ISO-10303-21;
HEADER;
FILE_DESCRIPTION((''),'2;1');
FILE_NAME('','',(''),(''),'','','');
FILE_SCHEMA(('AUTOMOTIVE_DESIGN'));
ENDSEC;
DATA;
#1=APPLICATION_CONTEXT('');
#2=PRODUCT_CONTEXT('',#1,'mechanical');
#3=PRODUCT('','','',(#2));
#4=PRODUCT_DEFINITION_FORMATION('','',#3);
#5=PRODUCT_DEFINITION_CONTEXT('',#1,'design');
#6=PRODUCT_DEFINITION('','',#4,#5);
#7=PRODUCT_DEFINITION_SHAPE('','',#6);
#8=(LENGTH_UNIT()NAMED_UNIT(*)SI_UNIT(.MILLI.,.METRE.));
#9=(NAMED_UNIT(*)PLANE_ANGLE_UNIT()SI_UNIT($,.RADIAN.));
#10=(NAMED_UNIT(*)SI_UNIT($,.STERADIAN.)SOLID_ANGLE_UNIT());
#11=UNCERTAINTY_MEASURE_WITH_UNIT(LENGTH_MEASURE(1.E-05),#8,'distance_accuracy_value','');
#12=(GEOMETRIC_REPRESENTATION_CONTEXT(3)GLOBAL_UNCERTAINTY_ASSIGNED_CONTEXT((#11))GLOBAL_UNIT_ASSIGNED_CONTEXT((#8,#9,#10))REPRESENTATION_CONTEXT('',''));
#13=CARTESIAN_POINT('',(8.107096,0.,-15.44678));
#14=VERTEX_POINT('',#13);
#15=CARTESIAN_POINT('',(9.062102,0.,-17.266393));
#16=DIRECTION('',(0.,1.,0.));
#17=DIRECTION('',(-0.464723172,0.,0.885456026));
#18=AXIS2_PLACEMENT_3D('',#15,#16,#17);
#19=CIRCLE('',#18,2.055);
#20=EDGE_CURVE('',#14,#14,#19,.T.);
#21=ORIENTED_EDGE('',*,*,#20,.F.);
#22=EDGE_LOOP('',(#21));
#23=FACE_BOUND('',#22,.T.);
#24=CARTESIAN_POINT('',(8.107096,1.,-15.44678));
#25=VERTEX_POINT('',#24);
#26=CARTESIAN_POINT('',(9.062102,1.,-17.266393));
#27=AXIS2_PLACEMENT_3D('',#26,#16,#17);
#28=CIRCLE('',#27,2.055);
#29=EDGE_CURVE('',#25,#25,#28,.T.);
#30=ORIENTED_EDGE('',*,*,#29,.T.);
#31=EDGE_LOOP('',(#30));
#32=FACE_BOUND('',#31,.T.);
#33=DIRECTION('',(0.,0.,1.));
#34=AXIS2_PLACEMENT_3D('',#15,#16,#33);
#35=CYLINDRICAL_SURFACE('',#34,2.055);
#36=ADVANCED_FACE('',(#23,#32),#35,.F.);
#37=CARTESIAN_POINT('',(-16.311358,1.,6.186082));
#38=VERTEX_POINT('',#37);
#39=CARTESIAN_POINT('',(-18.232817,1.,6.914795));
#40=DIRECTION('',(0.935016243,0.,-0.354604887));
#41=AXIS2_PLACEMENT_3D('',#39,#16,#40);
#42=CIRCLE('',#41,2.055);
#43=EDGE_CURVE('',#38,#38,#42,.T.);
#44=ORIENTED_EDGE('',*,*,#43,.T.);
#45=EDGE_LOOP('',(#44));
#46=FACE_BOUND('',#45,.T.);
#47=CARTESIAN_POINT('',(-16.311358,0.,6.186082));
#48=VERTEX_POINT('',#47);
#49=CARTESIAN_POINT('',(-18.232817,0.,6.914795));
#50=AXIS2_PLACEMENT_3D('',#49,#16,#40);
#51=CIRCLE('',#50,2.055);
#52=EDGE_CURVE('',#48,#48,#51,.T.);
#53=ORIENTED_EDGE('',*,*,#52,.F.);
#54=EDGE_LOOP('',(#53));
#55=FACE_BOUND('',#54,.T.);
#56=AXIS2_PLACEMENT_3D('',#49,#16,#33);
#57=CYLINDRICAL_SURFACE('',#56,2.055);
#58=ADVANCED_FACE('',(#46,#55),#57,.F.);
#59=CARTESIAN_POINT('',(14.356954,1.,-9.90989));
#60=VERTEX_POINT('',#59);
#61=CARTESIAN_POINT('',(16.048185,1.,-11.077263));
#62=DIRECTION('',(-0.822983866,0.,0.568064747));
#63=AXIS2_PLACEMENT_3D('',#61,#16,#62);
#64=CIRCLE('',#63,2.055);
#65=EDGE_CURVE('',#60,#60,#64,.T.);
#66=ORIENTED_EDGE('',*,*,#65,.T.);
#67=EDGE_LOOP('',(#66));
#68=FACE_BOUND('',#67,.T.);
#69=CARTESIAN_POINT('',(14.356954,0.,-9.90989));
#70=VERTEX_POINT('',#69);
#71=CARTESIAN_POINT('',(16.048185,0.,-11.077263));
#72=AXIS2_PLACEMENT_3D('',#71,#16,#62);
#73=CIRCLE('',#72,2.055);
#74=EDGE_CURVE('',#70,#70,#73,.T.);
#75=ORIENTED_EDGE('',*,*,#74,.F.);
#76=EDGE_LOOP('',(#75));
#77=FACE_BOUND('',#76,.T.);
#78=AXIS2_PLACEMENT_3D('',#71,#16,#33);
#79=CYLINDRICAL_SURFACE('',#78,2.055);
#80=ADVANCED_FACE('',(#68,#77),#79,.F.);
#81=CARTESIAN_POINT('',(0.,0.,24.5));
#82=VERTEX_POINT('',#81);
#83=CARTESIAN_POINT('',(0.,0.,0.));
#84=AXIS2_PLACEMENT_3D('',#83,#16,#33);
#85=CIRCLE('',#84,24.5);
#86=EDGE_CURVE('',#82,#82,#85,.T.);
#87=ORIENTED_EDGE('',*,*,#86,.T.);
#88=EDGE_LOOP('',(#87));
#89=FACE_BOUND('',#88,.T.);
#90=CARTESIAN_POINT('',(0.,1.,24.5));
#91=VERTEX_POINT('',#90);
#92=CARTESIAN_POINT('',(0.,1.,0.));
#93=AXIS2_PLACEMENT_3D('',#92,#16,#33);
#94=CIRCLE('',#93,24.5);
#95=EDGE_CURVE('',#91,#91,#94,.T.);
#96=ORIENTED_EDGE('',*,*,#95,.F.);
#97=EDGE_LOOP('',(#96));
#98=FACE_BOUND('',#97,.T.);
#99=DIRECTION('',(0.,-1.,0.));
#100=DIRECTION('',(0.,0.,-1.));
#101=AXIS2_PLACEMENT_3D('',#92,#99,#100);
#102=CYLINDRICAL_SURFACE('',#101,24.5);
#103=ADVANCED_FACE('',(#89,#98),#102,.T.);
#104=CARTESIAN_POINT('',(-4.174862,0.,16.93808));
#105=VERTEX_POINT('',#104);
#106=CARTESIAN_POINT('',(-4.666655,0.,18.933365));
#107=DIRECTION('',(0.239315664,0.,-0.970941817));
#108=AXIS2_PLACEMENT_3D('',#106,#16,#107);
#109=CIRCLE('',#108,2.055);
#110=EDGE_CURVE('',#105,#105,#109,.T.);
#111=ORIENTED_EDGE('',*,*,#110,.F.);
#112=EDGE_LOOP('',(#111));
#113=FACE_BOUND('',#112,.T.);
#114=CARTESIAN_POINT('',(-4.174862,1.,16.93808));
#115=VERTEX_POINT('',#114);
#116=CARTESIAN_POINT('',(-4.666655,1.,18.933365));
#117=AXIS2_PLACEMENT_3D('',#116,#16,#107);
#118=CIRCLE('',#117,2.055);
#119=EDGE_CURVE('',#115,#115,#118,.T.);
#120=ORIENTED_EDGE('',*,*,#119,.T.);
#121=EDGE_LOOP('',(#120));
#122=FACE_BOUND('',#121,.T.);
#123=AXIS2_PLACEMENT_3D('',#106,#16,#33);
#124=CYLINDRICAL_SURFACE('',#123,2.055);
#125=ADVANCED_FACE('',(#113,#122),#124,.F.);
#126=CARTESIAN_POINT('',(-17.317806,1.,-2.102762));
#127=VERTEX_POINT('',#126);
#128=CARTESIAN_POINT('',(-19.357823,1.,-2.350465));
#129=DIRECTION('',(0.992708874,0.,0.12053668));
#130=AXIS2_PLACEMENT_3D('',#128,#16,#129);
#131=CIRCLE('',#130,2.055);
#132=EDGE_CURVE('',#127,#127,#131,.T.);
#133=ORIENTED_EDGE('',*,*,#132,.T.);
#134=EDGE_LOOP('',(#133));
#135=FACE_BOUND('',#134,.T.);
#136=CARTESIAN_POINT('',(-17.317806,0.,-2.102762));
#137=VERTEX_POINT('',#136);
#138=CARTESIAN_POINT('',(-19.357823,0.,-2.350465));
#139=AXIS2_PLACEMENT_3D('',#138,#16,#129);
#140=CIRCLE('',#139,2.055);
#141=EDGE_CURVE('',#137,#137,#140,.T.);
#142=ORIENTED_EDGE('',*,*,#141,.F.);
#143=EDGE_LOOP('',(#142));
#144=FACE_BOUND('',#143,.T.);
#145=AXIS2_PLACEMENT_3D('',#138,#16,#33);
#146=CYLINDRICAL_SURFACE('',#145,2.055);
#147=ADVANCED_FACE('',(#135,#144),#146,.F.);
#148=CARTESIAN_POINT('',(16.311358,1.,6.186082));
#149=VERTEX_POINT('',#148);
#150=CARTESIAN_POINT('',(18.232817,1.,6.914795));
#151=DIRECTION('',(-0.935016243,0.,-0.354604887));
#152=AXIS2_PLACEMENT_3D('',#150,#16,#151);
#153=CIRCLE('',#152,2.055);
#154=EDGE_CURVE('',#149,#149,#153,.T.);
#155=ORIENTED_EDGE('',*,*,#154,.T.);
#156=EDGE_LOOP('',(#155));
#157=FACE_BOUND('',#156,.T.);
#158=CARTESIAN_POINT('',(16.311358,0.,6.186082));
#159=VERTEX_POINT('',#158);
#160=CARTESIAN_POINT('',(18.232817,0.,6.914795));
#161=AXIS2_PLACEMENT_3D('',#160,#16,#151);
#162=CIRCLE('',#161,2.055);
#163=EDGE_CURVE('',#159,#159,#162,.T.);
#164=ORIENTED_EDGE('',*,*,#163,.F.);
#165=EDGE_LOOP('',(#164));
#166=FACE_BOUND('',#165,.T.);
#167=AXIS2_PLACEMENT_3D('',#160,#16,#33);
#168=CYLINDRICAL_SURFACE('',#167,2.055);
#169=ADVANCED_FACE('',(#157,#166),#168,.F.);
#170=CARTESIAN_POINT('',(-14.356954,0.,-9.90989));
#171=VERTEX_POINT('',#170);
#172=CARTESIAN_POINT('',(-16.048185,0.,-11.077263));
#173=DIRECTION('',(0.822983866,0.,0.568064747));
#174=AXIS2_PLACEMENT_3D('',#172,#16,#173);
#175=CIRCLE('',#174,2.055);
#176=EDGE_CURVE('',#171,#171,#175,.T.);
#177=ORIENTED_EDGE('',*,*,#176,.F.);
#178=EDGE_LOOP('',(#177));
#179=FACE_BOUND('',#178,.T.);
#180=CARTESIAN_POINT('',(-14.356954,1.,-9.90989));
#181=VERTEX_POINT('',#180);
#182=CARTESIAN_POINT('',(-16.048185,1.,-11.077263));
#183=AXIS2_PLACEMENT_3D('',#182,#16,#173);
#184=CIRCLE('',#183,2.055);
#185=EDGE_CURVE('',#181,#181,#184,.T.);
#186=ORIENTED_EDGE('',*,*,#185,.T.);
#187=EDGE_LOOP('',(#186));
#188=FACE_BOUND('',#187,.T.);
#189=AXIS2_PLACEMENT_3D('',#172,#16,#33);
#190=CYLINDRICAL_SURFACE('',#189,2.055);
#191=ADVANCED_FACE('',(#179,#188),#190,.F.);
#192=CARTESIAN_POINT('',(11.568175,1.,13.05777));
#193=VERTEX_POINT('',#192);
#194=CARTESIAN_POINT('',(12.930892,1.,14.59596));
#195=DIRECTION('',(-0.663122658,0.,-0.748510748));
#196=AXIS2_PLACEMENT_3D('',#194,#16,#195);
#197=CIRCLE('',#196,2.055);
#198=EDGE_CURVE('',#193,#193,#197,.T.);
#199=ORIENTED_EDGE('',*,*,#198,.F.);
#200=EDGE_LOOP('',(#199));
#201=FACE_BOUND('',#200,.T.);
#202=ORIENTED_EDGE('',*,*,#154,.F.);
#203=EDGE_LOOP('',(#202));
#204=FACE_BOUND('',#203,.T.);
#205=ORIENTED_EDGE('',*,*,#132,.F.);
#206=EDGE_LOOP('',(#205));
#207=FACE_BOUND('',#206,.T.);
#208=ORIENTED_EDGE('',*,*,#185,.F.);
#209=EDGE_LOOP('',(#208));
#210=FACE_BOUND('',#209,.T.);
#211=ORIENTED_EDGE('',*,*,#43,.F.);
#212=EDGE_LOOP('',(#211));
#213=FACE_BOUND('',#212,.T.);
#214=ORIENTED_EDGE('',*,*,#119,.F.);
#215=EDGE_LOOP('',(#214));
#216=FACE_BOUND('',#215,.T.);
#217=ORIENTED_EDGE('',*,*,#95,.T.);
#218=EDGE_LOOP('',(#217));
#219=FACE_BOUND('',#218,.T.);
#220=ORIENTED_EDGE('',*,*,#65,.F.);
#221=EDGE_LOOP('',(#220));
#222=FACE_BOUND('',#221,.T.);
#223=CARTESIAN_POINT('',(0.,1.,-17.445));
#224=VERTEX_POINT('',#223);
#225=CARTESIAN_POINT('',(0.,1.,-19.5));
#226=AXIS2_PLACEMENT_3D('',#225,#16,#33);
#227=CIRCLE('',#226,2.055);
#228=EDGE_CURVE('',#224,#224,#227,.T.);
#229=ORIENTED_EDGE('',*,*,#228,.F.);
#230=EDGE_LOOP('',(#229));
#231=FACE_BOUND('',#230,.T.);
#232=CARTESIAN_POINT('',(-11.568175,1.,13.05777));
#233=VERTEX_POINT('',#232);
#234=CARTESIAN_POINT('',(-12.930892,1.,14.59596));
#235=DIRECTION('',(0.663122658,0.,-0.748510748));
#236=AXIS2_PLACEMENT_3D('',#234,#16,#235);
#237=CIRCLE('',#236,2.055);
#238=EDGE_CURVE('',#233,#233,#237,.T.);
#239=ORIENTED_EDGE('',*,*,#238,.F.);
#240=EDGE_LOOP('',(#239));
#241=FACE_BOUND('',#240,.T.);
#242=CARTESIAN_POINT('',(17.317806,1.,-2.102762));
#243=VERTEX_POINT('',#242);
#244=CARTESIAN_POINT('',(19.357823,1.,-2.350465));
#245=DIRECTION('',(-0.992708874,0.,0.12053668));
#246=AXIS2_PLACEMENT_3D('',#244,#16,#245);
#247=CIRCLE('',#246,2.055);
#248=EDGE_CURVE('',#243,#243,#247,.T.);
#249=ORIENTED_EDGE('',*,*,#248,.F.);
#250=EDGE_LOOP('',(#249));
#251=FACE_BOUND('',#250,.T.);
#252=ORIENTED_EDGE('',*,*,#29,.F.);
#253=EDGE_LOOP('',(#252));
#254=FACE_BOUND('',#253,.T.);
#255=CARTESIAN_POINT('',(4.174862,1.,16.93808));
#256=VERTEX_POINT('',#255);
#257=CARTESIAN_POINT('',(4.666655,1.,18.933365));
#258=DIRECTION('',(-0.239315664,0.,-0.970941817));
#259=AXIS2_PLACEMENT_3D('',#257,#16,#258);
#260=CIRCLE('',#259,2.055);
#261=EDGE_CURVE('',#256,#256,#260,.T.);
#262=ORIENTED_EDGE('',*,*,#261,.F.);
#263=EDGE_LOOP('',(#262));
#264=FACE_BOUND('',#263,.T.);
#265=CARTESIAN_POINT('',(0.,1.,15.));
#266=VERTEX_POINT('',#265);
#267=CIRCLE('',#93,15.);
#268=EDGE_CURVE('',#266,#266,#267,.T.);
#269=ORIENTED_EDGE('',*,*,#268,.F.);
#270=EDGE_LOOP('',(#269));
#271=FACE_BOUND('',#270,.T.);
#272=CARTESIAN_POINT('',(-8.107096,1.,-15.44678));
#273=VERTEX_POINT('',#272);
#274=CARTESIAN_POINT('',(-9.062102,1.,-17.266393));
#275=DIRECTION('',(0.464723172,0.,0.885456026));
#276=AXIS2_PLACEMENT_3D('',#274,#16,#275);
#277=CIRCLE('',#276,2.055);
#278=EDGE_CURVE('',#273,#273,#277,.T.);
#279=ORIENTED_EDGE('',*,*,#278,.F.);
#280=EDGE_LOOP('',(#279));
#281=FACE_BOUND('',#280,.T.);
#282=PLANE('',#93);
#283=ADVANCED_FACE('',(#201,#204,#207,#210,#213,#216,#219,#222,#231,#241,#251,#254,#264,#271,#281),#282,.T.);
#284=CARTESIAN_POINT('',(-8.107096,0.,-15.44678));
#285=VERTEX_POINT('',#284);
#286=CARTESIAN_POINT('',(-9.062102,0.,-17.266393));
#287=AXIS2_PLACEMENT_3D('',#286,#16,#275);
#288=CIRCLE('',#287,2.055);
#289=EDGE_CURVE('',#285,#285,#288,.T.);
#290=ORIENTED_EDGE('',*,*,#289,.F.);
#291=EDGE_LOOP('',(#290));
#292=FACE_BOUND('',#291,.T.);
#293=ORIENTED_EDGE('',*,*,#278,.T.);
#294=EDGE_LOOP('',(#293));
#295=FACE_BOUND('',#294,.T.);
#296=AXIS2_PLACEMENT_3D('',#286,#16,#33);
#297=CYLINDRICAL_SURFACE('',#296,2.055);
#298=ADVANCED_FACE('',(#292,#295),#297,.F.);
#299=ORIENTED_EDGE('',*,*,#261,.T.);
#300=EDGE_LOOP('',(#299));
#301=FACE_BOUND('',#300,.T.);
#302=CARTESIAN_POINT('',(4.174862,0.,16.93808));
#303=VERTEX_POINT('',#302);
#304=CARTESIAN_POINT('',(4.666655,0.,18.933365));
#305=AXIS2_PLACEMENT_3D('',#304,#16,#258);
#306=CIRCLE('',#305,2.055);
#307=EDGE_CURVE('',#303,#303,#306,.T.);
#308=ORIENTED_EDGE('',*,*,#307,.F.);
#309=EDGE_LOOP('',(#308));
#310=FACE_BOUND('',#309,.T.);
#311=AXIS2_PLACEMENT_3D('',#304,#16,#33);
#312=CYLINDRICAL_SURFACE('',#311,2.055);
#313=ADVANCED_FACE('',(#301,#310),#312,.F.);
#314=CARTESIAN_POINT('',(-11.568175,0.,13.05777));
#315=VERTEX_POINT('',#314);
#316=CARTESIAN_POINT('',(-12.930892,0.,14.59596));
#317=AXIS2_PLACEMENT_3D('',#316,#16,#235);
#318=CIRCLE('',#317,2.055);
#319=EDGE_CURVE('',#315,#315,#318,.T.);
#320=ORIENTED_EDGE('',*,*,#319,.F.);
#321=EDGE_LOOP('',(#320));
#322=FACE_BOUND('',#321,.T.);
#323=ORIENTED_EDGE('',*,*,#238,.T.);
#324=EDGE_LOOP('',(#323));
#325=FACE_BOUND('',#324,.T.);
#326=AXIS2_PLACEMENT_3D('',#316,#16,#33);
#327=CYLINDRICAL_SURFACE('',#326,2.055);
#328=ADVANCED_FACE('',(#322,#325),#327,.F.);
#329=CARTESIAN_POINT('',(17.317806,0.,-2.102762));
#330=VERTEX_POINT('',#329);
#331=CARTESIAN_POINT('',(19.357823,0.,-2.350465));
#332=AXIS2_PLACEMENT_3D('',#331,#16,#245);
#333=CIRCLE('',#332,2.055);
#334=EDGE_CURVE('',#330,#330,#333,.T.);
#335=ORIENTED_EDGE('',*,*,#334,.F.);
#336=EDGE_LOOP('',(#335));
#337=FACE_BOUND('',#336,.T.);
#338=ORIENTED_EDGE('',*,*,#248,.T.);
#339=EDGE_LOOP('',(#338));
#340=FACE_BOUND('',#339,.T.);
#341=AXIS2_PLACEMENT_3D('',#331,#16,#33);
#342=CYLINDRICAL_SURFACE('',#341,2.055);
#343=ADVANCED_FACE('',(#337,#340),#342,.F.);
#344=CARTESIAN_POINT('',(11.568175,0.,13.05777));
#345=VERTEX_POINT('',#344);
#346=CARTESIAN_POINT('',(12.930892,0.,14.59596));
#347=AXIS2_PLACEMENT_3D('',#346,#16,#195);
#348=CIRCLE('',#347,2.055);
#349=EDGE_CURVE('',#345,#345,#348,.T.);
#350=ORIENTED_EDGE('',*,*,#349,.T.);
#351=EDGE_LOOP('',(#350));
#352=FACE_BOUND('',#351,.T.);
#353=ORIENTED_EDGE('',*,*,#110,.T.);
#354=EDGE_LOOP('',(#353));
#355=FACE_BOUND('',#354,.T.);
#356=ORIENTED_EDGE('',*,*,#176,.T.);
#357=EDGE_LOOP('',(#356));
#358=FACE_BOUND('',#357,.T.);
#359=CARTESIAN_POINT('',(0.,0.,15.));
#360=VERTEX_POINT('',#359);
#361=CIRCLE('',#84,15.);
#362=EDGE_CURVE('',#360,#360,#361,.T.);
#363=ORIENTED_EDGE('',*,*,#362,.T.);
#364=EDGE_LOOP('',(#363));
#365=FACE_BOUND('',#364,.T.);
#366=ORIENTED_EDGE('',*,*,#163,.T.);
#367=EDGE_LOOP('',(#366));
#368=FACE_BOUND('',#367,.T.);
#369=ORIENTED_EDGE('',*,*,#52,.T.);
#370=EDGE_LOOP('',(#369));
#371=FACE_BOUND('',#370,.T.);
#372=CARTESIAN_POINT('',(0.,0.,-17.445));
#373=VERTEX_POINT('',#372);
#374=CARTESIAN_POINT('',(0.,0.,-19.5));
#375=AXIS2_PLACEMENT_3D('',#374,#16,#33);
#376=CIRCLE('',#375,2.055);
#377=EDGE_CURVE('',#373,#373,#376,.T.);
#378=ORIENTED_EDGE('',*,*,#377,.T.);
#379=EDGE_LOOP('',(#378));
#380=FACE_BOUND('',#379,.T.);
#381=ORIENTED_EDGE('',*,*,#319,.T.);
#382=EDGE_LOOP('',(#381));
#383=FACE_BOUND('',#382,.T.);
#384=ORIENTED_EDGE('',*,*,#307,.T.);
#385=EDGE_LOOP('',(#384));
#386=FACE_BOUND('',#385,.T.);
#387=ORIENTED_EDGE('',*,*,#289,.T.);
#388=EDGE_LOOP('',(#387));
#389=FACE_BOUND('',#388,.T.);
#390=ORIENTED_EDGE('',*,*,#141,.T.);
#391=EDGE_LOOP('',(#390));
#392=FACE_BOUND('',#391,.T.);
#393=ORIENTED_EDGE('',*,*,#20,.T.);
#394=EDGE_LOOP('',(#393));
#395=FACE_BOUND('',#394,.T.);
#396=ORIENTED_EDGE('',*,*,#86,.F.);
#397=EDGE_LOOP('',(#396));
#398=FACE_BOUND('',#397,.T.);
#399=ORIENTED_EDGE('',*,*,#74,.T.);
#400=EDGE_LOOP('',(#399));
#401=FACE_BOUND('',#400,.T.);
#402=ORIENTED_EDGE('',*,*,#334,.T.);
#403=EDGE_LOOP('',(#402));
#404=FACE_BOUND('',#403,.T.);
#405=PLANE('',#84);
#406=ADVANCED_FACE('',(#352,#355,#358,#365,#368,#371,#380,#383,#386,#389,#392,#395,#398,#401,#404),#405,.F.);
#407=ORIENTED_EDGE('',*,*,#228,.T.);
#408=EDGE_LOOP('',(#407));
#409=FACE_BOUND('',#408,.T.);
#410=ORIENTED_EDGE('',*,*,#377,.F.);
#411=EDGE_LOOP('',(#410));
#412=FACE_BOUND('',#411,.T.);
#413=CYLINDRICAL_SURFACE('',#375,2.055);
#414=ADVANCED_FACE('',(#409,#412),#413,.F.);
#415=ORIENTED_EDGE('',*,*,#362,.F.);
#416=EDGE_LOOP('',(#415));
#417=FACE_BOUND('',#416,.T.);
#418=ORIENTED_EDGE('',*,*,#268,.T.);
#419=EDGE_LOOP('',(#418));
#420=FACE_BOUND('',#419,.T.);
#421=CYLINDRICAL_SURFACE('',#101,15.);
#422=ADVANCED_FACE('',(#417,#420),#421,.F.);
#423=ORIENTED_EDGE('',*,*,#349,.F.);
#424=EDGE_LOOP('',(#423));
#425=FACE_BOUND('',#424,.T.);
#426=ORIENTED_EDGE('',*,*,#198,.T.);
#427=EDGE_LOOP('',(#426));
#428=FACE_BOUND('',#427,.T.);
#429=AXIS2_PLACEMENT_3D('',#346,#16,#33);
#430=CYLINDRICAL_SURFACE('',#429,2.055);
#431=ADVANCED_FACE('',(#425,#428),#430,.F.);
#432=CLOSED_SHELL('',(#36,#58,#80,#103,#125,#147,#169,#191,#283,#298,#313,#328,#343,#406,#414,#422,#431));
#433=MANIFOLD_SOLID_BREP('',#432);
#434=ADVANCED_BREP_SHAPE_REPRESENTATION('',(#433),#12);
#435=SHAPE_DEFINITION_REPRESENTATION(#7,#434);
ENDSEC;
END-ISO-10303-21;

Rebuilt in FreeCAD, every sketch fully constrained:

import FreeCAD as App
import Part
import Sketcher

V = App.Vector
Q = App.Units.Quantity

doc = App.newDocument("Part")
body = doc.addObject("PartDesign::Body", "Body")

# Sketch on XZ plane
sketch1 = doc.addObject("Sketcher::SketchObject", "Sketch")
body.addObject(sketch1)
sketch1.AttachmentSupport = (doc.XZ_Plane, [""])
sketch1.MapMode = "FlatFace"
sketch1.addGeometry(Part.Circle(V(0, 0, 0), V(0, 0, 1), 24.5), False)
sketch1.addGeometry(Part.Circle(V(0, 0, 0), V(0, 0, 1), 15), False)
sketch1.addConstraint(Sketcher.Constraint("Coincident", 0, 3, -1, 1))
sketch1.addConstraint(Sketcher.Constraint("Coincident", 1, 3, -1, 1))
sketch1.addConstraint(Sketcher.Constraint("Diameter", 0, Q("49 mm")))
sketch1.addConstraint(Sketcher.Constraint("Diameter", 1, Q("30 mm")))
pad1 = doc.addObject("PartDesign::Pad", "Pad")
body.addObject(pad1)
pad1.Profile = sketch1
pad1.Length = 1
pad1.Reversed = True

# Sketch on XZ plane
sketch2 = doc.addObject("Sketcher::SketchObject", "Sketch001")
body.addObject(sketch2)
sketch2.AttachmentSupport = (doc.XZ_Plane, [""])
sketch2.MapMode = "FlatFace"
sketch2.AttachmentOffset = App.Placement(V(0, 0, -1), App.Rotation())
sketch2.addGeometry(Part.Circle(V(0, -19.5, 0), V(0, 0, 1), 2.055), False)
sketch2.addConstraint(Sketcher.Constraint("PointOnObject", 0, 3, -2))
sketch2.addConstraint(Sketcher.Constraint("Diameter", 0, Q("4.11 mm")))
sketch2.addConstraint(Sketcher.Constraint("DistanceY", 0, 3, -1, 1, Q("19.5 mm")))
pocket1 = doc.addObject("PartDesign::Pocket", "Pocket")
body.addObject(pocket1)
pocket1.Profile = sketch2
pocket1.Type = "ThroughAll"
pocket1.Reversed = True
doc.recompute()

polarpattern = doc.addObject("PartDesign::PolarPattern", "PolarPattern")
body.addObject(polarpattern)
polarpattern.Originals = [pocket1]
polarpattern.Axis = (doc.Y_Axis, [""])
polarpattern.Angle = 360
polarpattern.Occurrences = 13
body.Tip = polarpattern

doc.recompute()
